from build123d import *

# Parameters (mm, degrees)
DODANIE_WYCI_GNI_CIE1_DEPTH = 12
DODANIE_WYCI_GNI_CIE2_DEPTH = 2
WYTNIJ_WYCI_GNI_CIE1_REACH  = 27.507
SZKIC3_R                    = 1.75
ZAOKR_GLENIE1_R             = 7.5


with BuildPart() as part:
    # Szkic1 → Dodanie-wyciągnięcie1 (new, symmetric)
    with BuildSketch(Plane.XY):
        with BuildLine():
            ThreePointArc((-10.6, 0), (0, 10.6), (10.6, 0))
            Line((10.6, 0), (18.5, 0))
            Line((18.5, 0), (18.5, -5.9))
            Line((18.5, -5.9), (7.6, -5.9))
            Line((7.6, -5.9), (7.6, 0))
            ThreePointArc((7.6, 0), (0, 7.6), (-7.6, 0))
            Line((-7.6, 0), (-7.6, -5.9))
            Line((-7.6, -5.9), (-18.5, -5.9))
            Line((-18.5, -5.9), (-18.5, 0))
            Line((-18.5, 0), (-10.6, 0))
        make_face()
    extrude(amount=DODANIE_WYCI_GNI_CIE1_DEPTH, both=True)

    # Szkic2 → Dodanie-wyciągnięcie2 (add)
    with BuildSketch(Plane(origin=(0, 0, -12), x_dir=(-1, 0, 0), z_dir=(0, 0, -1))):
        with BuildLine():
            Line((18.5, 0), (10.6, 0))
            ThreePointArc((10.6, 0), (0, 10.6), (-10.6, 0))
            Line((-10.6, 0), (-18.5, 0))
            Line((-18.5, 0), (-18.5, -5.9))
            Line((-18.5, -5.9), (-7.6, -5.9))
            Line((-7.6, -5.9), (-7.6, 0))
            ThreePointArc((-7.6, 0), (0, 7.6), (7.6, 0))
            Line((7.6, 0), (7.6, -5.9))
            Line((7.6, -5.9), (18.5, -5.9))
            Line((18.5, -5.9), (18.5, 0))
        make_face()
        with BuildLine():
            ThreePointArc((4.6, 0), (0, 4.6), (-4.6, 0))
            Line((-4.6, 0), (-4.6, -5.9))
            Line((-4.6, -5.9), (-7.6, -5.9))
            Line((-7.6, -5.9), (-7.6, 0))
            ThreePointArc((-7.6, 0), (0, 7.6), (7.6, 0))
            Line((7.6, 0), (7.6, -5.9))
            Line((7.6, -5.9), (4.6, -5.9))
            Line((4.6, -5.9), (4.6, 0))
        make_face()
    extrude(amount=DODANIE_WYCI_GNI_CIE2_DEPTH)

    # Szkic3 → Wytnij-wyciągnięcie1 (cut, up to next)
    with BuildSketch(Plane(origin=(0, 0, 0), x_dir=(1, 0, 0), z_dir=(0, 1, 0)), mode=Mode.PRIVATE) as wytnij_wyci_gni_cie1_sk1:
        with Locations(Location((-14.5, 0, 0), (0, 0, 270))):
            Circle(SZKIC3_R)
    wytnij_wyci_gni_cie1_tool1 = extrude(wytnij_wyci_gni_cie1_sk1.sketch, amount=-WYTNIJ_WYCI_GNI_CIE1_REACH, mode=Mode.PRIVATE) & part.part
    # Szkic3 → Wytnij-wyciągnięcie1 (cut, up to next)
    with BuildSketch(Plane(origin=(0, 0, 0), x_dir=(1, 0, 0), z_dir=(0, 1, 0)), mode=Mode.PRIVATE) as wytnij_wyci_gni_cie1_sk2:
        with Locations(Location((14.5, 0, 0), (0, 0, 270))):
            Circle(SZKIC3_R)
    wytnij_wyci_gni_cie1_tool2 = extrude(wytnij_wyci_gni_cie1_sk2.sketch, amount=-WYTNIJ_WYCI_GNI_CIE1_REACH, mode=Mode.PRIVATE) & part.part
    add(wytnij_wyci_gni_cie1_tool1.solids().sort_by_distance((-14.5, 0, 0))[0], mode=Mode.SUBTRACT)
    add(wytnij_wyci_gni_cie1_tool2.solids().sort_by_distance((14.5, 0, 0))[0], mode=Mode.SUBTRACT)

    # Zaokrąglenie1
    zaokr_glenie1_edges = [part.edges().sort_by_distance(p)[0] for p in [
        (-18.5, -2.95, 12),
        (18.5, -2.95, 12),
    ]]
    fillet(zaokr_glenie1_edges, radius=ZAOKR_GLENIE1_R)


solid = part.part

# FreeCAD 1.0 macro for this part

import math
import FreeCAD as App
import Part
import Sketcher

V = App.Vector


def edges_at(feature, points):
    """Names of the edges that pass closest to the given points."""
    edges = feature.Shape.Edges
    near = lambda p: min(range(len(edges)), key=lambda i: edges[i].distToShape(Part.Vertex(*p))[0])
    return sorted({f"Edge{near(p) + 1}" for p in points})

doc = App.newDocument("Part")
params = doc.addObject("Spreadsheet::Sheet", "Params")
for row, (alias, value) in enumerate([
    ("sketch1_radius", "10.6 mm"),
    ("sketch1_radius2", "7.6 mm"),
    ("sketch1_width", "7.9 mm"),
    ("sketch1_height", "5.9 mm"),
    ("pad1_length", "24 mm"),
    ("sketch2_radius", "10.6 mm"),
    ("sketch2_radius2", "4.6 mm"),
    ("sketch2_width", "7.9 mm"),
    ("sketch2_height", "5.9 mm"),
    ("pad2_length", "2 mm"),
    ("sketch3_diameter", "3.5 mm"),
    ("sketch4_diameter", "3.5 mm"),
    ("fillet_radius", "7.5 mm"),
], start=1):
    params.set(f"A{row}", alias)
    params.set(f"B{row}", "=" + value)
    params.setAlias(f"B{row}", alias)

body = doc.addObject("PartDesign::Body", "Body")

sketch1 = body.newObject("Sketcher::SketchObject", "Sketch")
sketch1.AttachmentSupport = (doc.getObject("XY_Plane"), [""])
sketch1.MapMode = "FlatFace"
sketch1.addGeometry(Part.ArcOfCircle(Part.Circle(V(0, 0, 0), V(0, 0, 1), 11), math.radians(0), math.radians(180)), False)
sketch1.addGeometry(Part.LineSegment(V(-11, 0, 0), V(-18, 0, 0)), False)
sketch1.addGeometry(Part.LineSegment(V(-18, 0, 0), V(-18, -6, 0)), False)
sketch1.addGeometry(Part.LineSegment(V(-18, -6, 0), V(-8, -6, 0)), False)
sketch1.addGeometry(Part.LineSegment(V(-8, -6, 0), V(-8, 0, 0)), False)
sketch1.addGeometry(Part.ArcOfCircle(Part.Circle(V(0, 0, 0), V(0, 0, 1), 8), math.radians(0), math.radians(180)), False)
sketch1.addGeometry(Part.LineSegment(V(8, 0, 0), V(8, -6, 0)), False)
sketch1.addGeometry(Part.LineSegment(V(8, -6, 0), V(18, -6, 0)), False)
sketch1.addGeometry(Part.LineSegment(V(18, -6, 0), V(18, 0, 0)), False)
sketch1.addGeometry(Part.LineSegment(V(18, 0, 0), V(11, 0, 0)), False)
sketch1.addConstraint(Sketcher.Constraint("Coincident", 0, 2, 1, 1))
sketch1.addConstraint(Sketcher.Constraint("Coincident", 1, 2, 2, 1))
sketch1.addConstraint(Sketcher.Constraint("Coincident", 2, 2, 3, 1))
sketch1.addConstraint(Sketcher.Constraint("Coincident", 3, 2, 4, 1))
sketch1.addConstraint(Sketcher.Constraint("Tangent", 4, 2, 5, 2))
sketch1.addConstraint(Sketcher.Constraint("Tangent", 5, 1, 6, 1))
sketch1.addConstraint(Sketcher.Constraint("Coincident", 6, 2, 7, 1))
sketch1.addConstraint(Sketcher.Constraint("Coincident", 7, 2, 8, 1))
sketch1.addConstraint(Sketcher.Constraint("Coincident", 8, 2, 9, 1))
sketch1.addConstraint(Sketcher.Constraint("Coincident", 9, 2, 0, 1))
sketch1.addConstraint(Sketcher.Constraint("Horizontal", 1))
sketch1.addConstraint(Sketcher.Constraint("Vertical", 2))
sketch1.addConstraint(Sketcher.Constraint("Horizontal", 3))
sketch1.addConstraint(Sketcher.Constraint("Vertical", 4))
sketch1.addConstraint(Sketcher.Constraint("Vertical", 6))
sketch1.addConstraint(Sketcher.Constraint("Horizontal", 7))
sketch1.addConstraint(Sketcher.Constraint("Vertical", 8))
sketch1.addConstraint(Sketcher.Constraint("Horizontal", 9))
sketch1.addConstraint(Sketcher.Constraint("Coincident", 0, 3, -1, 1))
sketch1.addConstraint(Sketcher.Constraint("Coincident", 5, 3, -1, 1))
sketch1.addConstraint(Sketcher.Constraint("Symmetric", 1, 2, 8, 2, -1, 1))
sketch1.addConstraint(Sketcher.Constraint("PointOnObject", 0, 2, -1))
sketch1.addConstraint(Sketcher.Constraint("Horizontal", 3, 2, 6, 2))
sketch1.addConstraint(Sketcher.Constraint("Radius", 0, 10.6))
sketch1.addConstraint(Sketcher.Constraint("Radius", 5, 7.6))
sketch1.addConstraint(Sketcher.Constraint("DistanceX", 1, 2, 1, 1, 7.9))
sketch1.addConstraint(Sketcher.Constraint("DistanceY", 2, 2, 2, 1, 5.9))
sketch1.setExpression("Constraints[23]", "Params.sketch1_radius")
sketch1.setExpression("Constraints[24]", "Params.sketch1_radius2")
sketch1.setExpression("Constraints[25]", "Params.sketch1_width")
sketch1.setExpression("Constraints[26]", "Params.sketch1_height")
pad1 = body.newObject("PartDesign::Pad", "Pad")
pad1.Profile = sketch1
pad1.setExpression("Length", "Params.pad1_length")
pad1.Midplane = True

sketch2 = body.newObject("Sketcher::SketchObject", "Sketch001")
sketch2.AttachmentSupport = (doc.getObject("XY_Plane"), [""])
sketch2.MapMode = "FlatFace"
sketch2.AttachmentOffset = App.Placement(V(0, 0, -12), App.Rotation())
sketch2.addGeometry(Part.LineSegment(V(-18.5, 0, 0), V(-10.6, 0, 0)), False)
sketch2.addGeometry(Part.ArcOfCircle(Part.Circle(V(0, 0, 0), V(0, 0, 1), 10.6), math.radians(0), math.radians(180)), False)
sketch2.addGeometry(Part.LineSegment(V(10.6, 0, 0), V(18.5, 0, 0)), False)
sketch2.addGeometry(Part.LineSegment(V(18.5, 0, 0), V(18.5, -5.9, 0)), False)
sketch2.addGeometry(Part.LineSegment(V(18.5, -5.9, 0), V(4.6, -5.9, 0)), False)
sketch2.addGeometry(Part.LineSegment(V(4.6, -5.9, 0), V(4.6, 0, 0)), False)
sketch2.addGeometry(Part.ArcOfCircle(Part.Circle(V(0, 0, 0), V(0, 0, 1), 4.6), math.radians(0), math.radians(180)), False)
sketch2.addGeometry(Part.LineSegment(V(-4.6, 0, 0), V(-4.6, -5.9, 0)), False)
sketch2.addGeometry(Part.LineSegment(V(-4.6, -5.9, 0), V(-18.5, -5.9, 0)), False)
sketch2.addGeometry(Part.LineSegment(V(-18.5, -5.9, 0), V(-18.5, 0, 0)), False)
sketch2.addConstraint(Sketcher.Constraint("Coincident", 0, 2, 1, 2))
sketch2.addConstraint(Sketcher.Constraint("Coincident", 1, 1, 2, 1))
sketch2.addConstraint(Sketcher.Constraint("Coincident", 2, 2, 3, 1))
sketch2.addConstraint(Sketcher.Constraint("Coincident", 3, 2, 4, 1))
sketch2.addConstraint(Sketcher.Constraint("Coincident", 4, 2, 5, 1))
sketch2.addConstraint(Sketcher.Constraint("Tangent", 5, 2, 6, 1))
sketch2.addConstraint(Sketcher.Constraint("Tangent", 6, 2, 7, 1))
sketch2.addConstraint(Sketcher.Constraint("Coincident", 7, 2, 8, 1))
sketch2.addConstraint(Sketcher.Constraint("Coincident", 8, 2, 9, 1))
sketch2.addConstraint(Sketcher.Constraint("Coincident", 9, 2, 0, 1))
sketch2.addConstraint(Sketcher.Constraint("Horizontal", 0))
sketch2.addConstraint(Sketcher.Constraint("Horizontal", 2))
sketch2.addConstraint(Sketcher.Constraint("Vertical", 3))
sketch2.addConstraint(Sketcher.Constraint("Horizontal", 4))
sketch2.addConstraint(Sketcher.Constraint("Vertical", 5))
sketch2.addConstraint(Sketcher.Constraint("Vertical", 7))
sketch2.addConstraint(Sketcher.Constraint("Horizontal", 8))
sketch2.addConstraint(Sketcher.Constraint("Vertical", 9))
sketch2.addConstraint(Sketcher.Constraint("Coincident", 1, 3, -1, 1))
sketch2.addConstraint(Sketcher.Constraint("Coincident", 6, 3, -1, 1))
sketch2.addConstraint(Sketcher.Constraint("Symmetric", 2, 2, 9, 2, -1, 1))
sketch2.addConstraint(Sketcher.Constraint("PointOnObject", 0, 2, -1))
sketch2.addConstraint(Sketcher.Constraint("Horizontal", 4, 2, 7, 2))
sketch2.addConstraint(Sketcher.Constraint("Radius", 1, 10.6))
sketch2.addConstraint(Sketcher.Constraint("Radius", 6, 4.6))
sketch2.addConstraint(Sketcher.Constraint("DistanceX", 0, 1, 0, 2, 7.9))
sketch2.addConstraint(Sketcher.Constraint("DistanceY", 3, 2, 3, 1, 5.9))
sketch2.setExpression("Constraints[23]", "Params.sketch2_radius")
sketch2.setExpression("Constraints[24]", "Params.sketch2_radius2")
sketch2.setExpression("Constraints[25]", "Params.sketch2_width")
sketch2.setExpression("Constraints[26]", "Params.sketch2_height")
pad2 = body.newObject("PartDesign::Pad", "Pad001")
pad2.Profile = sketch2
pad2.setExpression("Length", "Params.pad2_length")
pad2.Reversed = True

sketch3 = body.newObject("Sketcher::SketchObject", "Sketch002")
sketch3.AttachmentSupport = (doc.getObject("XZ_Plane"), [""])
sketch3.MapMode = "FlatFace"
sketch3.addGeometry(Part.Circle(V(-14.5, 0, 0), V(0, 0, 1), 1.8), False)
sketch3.addConstraint(Sketcher.Constraint("PointOnObject", 0, 3, -1))
sketch3.addConstraint(Sketcher.Constraint("Diameter", 0, 3.5))
sketch3.addConstraint(Sketcher.Constraint("DistanceX", 0, 3, -1, 1, 14.5))
sketch3.setExpression("Constraints[1]", "Params.sketch3_diameter")
pocket1 = body.newObject("PartDesign::Pocket", "Pocket")
pocket1.Profile = sketch3
pocket1.Type = "UpToFirst"
pocket1.Reversed = True

sketch4 = body.newObject("Sketcher::SketchObject", "Sketch003")
sketch4.AttachmentSupport = (doc.getObject("XZ_Plane"), [""])
sketch4.MapMode = "FlatFace"
sketch4.addGeometry(Part.Circle(V(14.5, 0, 0), V(0, 0, 1), 1.8), False)
sketch4.addConstraint(Sketcher.Constraint("PointOnObject", 0, 3, -1))
sketch4.addConstraint(Sketcher.Constraint("Diameter", 0, 3.5))
sketch4.addConstraint(Sketcher.Constraint("DistanceX", -1, 1, 0, 3, 14.5))
sketch4.setExpression("Constraints[1]", "Params.sketch4_diameter")
pocket2 = body.newObject("PartDesign::Pocket", "Pocket001")
pocket2.Profile = sketch4
pocket2.Type = "UpToFirst"
pocket2.Reversed = True
doc.recompute()

fillet = body.newObject("PartDesign::Fillet", "Fillet")
fillet.Base = (pocket2, edges_at(pocket2, [(-18.5, -2.95, 12), (18.5, -2.95, 12)]))
fillet.setExpression("Radius", "Params.fillet_radius")

doc.recompute()
